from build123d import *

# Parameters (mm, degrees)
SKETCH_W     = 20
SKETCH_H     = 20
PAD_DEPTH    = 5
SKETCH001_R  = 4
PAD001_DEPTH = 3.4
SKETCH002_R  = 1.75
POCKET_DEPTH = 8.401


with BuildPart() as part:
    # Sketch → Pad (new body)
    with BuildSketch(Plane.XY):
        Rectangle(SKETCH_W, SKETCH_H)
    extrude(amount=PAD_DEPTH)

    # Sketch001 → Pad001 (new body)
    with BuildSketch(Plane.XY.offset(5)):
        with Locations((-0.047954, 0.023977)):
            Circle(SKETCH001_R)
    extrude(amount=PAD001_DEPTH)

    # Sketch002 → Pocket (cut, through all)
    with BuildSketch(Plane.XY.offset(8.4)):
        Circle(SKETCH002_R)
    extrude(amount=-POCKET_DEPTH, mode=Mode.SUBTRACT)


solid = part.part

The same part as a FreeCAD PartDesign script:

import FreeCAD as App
import Part
import Sketcher

V = App.Vector
Q = App.Units.Quantity


def add_polygon(sketch, points):
    """Adds a closed chain of lines whose ends are joined by coincident constraints."""
    first, n = sketch.GeometryCount, len(points)
    for a, b in zip(points, points[1:] + points[:1]):
        sketch.addGeometry(Part.LineSegment(App.Vector(*a, 0), App.Vector(*b, 0)), False)
    for i in range(n):
        sketch.addConstraint(Sketcher.Constraint("Coincident", first + i, 2, first + (i + 1) % n, 1))

doc = App.newDocument("Part")
params = doc.addObject("Spreadsheet::Sheet", "Params")
for row, (alias, value) in enumerate([
    ("sketch1_width", "20 mm"),
    ("pad1_length", "5 mm"),
    ("sketch2_diameter", "8 mm"),
    ("pad2_length", "3.4 mm"),
    ("sketch3_diameter", "3.5 mm"),
], start=1):
    params.set(f"A{row}", alias)
    params.set(f"B{row}", "=" + value)
    params.setAlias(f"B{row}", alias)

body = doc.addObject("PartDesign::Body", "Body")

# Sketch on XY plane
sketch1 = body.newObject("Sketcher::SketchObject", "Sketch")
sketch1.AttachmentSupport = (doc.getObject("XY_Plane"), [""])
sketch1.MapMode = "FlatFace"
add_polygon(sketch1, [(-10, 10), (-10, -10), (10, -10), (10, 10)])  # lines 0-3
sketch1.addConstraint(Sketcher.Constraint("Vertical", 0))
sketch1.addConstraint(Sketcher.Constraint("Horizontal", 1))
sketch1.addConstraint(Sketcher.Constraint("Vertical", 2))
sketch1.addConstraint(Sketcher.Constraint("Horizontal", 3))
sketch1.addConstraint(Sketcher.Constraint("Symmetric", 0, 2, 2, 2, -1, 1))
sketch1.addConstraint(Sketcher.Constraint("Equal", 3, 0))
sketch1.addConstraint(Sketcher.Constraint("DistanceX", 1, 1, 1, 2, Q("20 mm")))
sketch1.setExpression("Constraints[10]", "Params.sketch1_width")
pad1 = body.newObject("PartDesign::Pad", "Pad")
pad1.Profile = sketch1
pad1.setExpression("Length", "Params.pad1_length")

# Sketch on XY plane
sketch2 = body.newObject("Sketcher::SketchObject", "Sketch001")
sketch2.AttachmentSupport = (doc.getObject("XY_Plane"), [""])
sketch2.MapMode = "FlatFace"
sketch2.AttachmentOffset = App.Placement(V(0, 0, 5), App.Rotation())
sketch2.addGeometry(Part.Circle(V(0, 0, 0), V(0, 0, 1), 4), False)
sketch2.addConstraint(Sketcher.Constraint("Diameter", 0, Q("8 mm")))
sketch2.addConstraint(Sketcher.Constraint("DistanceX", 0, 3, -1, 1, Q("0.047954 mm")))
sketch2.addConstraint(Sketcher.Constraint("DistanceY", -1, 1, 0, 3, Q("0.023977 mm")))
sketch2.setExpression("Constraints[0]", "Params.sketch2_diameter")
pad2 = body.newObject("PartDesign::Pad", "Pad001")
pad2.Profile = sketch2
pad2.setExpression("Length", "Params.pad2_length")

# Sketch on XY plane
sketch3 = body.newObject("Sketcher::SketchObject", "Sketch002")
sketch3.AttachmentSupport = (doc.getObject("XY_Plane"), [""])
sketch3.MapMode = "FlatFace"
sketch3.AttachmentOffset = App.Placement(V(0, 0, 8.4), App.Rotation())
sketch3.addGeometry(Part.Circle(V(0, 0, 0), V(0, 0, 1), 1.8), False)
sketch3.addConstraint(Sketcher.Constraint("Coincident", 0, 3, -1, 1))
sketch3.addConstraint(Sketcher.Constraint("Diameter", 0, Q("3.5 mm")))
sketch3.setExpression("Constraints[1]", "Params.sketch3_diameter")
pocket1 = body.newObject("PartDesign::Pocket", "Pocket")
pocket1.Profile = sketch3
pocket1.Type = "ThroughAll"

doc.recompute()
